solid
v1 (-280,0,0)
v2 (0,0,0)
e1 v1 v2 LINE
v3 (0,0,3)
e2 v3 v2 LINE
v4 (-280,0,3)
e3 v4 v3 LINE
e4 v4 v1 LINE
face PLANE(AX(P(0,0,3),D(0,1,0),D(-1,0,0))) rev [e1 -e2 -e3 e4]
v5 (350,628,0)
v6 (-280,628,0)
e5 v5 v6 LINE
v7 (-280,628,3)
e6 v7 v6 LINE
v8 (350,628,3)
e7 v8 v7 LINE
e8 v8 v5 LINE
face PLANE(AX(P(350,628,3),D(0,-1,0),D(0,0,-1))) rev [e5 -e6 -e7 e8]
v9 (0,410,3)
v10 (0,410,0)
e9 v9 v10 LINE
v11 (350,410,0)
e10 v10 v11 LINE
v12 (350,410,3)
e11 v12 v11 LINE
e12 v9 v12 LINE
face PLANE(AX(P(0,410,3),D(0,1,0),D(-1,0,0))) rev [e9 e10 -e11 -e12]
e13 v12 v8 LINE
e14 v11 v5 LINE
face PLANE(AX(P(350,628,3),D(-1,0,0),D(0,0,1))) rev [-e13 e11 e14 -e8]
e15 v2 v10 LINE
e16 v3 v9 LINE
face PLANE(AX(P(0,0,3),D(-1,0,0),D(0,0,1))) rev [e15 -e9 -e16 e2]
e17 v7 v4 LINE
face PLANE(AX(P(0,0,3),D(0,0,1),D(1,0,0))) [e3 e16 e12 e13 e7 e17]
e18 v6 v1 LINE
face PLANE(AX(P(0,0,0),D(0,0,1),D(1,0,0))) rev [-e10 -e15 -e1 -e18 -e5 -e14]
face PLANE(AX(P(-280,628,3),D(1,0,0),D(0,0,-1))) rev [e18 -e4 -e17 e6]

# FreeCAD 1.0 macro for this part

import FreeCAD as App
import Part
import Sketcher

doc = App.newDocument("Part")
params = doc.addObject("Spreadsheet::Sheet", "Params")
for row, (alias, value) in enumerate([
    ("sketch1_width", "630 mm"),
    ("sketch1_width2", "280 mm"),
    ("sketch1_height", "628 mm"),
    ("sketch1_height2", "410 mm"),
    ("pad1_length", "3 mm"),
], start=1):
    params.set(f"A{row}", alias)
    params.set(f"B{row}", "=" + value)
    params.setAlias(f"B{row}", alias)

body = doc.addObject("PartDesign::Body", "Body")

# Sketch on XY plane
sketch1 = body.newObject("Sketcher::SketchObject", "Sketch")
sketch1.AttachmentSupport = (doc.getObject("XY_Plane"), [""])
sketch1.MapMode = "FlatFace"
sketch1.addGeometry([
    Part.LineSegment(App.Vector(350, 628, 0), App.Vector(-280, 628, 0)),  # 0
    Part.LineSegment(App.Vector(-280, 628, 0), App.Vector(-280, 0, 0)),  # 1
    Part.LineSegment(App.Vector(-280, 0, 0), App.Vector(0, 0, 0)),  # 2
    Part.LineSegment(App.Vector(0, 0, 0), App.Vector(0, 410, 0)),  # 3
    Part.LineSegment(App.Vector(0, 410, 0), App.Vector(350, 410, 0)),  # 4
    Part.LineSegment(App.Vector(350, 410, 0), App.Vector(350, 628, 0)),  # 5
], False)
sketch1.addConstraint([
    Sketcher.Constraint("Coincident", 0, 2, 1, 1),
    Sketcher.Constraint("Coincident", 1, 2, 2, 1),
    Sketcher.Constraint("Coincident", 2, 2, 3, 1),
    Sketcher.Constraint("Coincident", 3, 2, 4, 1),
    Sketcher.Constraint("Coincident", 4, 2, 5, 1),
    Sketcher.Constraint("Coincident", 5, 2, 0, 1),
    Sketcher.Constraint("Horizontal", 0),
    Sketcher.Constraint("Vertical", 1),
    Sketcher.Constraint("Horizontal", 2),
    Sketcher.Constraint("Vertical", 3),
    Sketcher.Constraint("Horizontal", 4),
    Sketcher.Constraint("Vertical", 5),
    Sketcher.Constraint("Coincident", 2, 2, -1, 1),
    Sketcher.Constraint("DistanceX", 0, 2, 0, 1, 630.0),
    Sketcher.Constraint("DistanceX", 2, 1, 2, 2, 280.0),
    Sketcher.Constraint("DistanceY", 1, 2, 1, 1, 628.0),
    Sketcher.Constraint("DistanceY", 3, 1, 3, 2, 410.0),
])
sketch1.setExpression("Constraints[13]", "Params.sketch1_width")
sketch1.setExpression("Constraints[14]", "Params.sketch1_width2")
sketch1.setExpression("Constraints[15]", "Params.sketch1_height")
sketch1.setExpression("Constraints[16]", "Params.sketch1_height2")
pad1 = body.newObject("PartDesign::Pad", "Pad")
pad1.Profile = sketch1
pad1.setExpression("Length", "Params.pad1_length")

doc.recompute()
